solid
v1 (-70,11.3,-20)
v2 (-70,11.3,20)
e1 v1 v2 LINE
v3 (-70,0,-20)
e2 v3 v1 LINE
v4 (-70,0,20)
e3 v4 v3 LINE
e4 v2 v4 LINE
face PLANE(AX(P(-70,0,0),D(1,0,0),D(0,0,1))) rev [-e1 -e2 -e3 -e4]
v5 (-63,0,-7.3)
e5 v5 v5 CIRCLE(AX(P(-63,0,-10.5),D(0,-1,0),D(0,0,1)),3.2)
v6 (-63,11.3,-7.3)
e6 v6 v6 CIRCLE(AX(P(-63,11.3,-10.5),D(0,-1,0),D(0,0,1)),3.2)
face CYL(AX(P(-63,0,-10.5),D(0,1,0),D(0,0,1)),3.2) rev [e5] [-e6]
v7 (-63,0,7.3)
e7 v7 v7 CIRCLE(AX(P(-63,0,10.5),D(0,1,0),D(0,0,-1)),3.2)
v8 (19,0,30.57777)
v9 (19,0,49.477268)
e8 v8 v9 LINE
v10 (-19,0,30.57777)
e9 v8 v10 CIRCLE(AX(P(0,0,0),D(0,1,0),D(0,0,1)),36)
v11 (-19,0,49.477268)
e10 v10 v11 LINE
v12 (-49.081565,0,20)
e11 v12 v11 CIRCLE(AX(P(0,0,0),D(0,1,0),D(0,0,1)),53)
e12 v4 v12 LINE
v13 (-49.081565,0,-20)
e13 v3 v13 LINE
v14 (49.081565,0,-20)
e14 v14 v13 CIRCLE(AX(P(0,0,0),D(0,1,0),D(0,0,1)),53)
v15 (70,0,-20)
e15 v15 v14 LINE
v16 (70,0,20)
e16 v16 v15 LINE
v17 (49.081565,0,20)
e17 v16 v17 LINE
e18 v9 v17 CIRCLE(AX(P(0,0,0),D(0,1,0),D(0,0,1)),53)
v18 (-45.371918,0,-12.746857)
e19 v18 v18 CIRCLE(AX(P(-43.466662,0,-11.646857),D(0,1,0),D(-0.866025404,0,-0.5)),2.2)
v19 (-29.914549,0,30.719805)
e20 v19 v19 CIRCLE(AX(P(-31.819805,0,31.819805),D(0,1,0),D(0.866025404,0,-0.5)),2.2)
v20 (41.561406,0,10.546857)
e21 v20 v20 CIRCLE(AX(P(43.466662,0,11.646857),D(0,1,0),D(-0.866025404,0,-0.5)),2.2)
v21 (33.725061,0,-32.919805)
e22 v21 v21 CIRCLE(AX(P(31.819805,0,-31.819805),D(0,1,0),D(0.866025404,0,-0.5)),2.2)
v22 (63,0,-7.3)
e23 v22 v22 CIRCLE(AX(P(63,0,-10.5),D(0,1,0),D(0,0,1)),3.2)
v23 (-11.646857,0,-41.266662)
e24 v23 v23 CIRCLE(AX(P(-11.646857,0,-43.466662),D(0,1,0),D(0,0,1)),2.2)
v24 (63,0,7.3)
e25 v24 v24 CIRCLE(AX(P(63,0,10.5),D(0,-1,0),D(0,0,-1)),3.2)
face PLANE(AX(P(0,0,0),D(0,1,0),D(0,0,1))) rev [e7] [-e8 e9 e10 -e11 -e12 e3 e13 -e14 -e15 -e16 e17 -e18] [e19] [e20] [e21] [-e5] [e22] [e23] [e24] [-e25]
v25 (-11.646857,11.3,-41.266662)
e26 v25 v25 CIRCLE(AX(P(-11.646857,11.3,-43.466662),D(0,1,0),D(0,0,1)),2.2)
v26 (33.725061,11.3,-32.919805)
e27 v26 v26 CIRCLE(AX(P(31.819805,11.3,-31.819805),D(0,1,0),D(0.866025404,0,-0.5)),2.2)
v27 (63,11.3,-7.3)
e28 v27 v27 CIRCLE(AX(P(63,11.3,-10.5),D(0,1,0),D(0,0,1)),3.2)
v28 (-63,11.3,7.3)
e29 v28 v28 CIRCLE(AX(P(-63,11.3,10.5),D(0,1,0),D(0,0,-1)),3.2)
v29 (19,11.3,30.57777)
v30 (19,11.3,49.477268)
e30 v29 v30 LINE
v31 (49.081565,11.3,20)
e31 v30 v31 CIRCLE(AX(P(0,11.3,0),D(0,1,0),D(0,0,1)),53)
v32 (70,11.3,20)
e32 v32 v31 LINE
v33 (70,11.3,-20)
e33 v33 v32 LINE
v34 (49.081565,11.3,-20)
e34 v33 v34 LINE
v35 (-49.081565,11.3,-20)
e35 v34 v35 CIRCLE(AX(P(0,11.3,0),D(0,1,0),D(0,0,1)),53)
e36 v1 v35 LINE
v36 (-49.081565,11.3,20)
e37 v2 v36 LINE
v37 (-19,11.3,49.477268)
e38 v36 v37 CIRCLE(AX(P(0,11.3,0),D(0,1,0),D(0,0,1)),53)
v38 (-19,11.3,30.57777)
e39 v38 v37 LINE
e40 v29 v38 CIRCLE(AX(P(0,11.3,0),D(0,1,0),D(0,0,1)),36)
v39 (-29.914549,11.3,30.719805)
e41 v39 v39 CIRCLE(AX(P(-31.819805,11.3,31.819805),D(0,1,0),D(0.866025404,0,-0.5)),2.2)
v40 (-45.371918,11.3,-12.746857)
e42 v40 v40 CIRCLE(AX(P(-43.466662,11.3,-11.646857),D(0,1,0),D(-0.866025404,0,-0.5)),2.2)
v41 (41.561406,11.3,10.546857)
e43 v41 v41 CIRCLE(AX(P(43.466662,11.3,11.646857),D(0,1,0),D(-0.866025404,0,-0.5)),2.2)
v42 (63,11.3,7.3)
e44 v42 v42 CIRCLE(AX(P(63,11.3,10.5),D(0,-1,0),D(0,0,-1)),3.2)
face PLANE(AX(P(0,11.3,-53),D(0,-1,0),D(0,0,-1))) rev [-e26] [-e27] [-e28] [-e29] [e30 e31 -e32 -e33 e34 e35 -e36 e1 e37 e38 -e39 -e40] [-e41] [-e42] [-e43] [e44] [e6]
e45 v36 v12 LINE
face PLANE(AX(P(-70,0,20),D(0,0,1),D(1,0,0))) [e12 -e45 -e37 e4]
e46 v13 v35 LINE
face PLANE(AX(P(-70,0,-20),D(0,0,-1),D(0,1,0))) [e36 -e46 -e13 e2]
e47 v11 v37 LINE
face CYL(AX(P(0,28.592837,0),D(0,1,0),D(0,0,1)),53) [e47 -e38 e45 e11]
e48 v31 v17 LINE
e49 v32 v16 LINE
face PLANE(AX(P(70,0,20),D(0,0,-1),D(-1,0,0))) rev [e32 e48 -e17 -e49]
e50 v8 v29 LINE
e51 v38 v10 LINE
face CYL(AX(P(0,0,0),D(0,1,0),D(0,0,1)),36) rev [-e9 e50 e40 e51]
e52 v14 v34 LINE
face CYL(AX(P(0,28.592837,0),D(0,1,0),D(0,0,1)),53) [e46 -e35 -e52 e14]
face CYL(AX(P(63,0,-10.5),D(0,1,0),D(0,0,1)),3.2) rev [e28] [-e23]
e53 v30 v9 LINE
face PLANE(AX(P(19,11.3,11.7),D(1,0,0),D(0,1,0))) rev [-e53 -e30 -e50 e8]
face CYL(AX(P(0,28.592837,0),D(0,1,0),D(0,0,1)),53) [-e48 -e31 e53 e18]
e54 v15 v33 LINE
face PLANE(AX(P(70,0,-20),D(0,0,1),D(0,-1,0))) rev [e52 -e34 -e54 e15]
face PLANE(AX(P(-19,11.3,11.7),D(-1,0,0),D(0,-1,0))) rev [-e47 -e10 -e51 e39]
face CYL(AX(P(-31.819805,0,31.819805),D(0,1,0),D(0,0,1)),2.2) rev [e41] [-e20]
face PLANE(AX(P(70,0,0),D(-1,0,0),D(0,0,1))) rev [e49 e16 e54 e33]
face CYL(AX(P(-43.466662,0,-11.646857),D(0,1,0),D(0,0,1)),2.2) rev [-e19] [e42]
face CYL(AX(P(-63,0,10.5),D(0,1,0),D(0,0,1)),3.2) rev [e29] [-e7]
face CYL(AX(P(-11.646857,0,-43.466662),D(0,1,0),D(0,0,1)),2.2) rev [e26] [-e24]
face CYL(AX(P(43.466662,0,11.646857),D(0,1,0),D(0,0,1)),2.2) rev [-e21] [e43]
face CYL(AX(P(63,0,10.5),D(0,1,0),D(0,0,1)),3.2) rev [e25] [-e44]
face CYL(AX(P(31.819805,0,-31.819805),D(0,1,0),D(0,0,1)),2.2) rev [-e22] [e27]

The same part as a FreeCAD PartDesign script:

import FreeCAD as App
import Part
import Sketcher

V = App.Vector


def add_polygon(sketch, points):
    """Adds a closed chain of lines whose ends are joined by coincident constraints."""
    first, n = sketch.GeometryCount, len(points)
    for a, b in zip(points, points[1:] + points[:1]):
        sketch.addGeometry(Part.LineSegment(App.Vector(*a, 0), App.Vector(*b, 0)), False)
    for i in range(n):
        sketch.addConstraint(Sketcher.Constraint("Coincident", first + i, 2, first + (i + 1) % n, 1))

doc = App.newDocument("Part")
body = doc.addObject("PartDesign::Body", "Body")

# Sketch on YZ plane
sketch1 = body.newObject("Sketcher::SketchObject", "Sketch")
sketch1.AttachmentSupport = (doc.getObject("YZ_Plane"), [""])
sketch1.MapMode = "FlatFace"
add_polygon(sketch1, [(11.3, 0), (0, 0), (0, -53), (11.3, -53)])  # lines 0-3
sketch1.addConstraint(Sketcher.Constraint("Horizontal", 0))
sketch1.addConstraint(Sketcher.Constraint("Vertical", 1))
sketch1.addConstraint(Sketcher.Constraint("Horizontal", 2))
sketch1.addConstraint(Sketcher.Constraint("Vertical", 3))
sketch1.addConstraint(Sketcher.Constraint("Coincident", 0, 2, -1, 1))
sketch1.addConstraint(Sketcher.Constraint("DistanceY", 1, 2, 1, 1, 53.0))
sketch1.addConstraint(Sketcher.Constraint("DistanceX", 0, 2, 0, 1, 11.3))
revolution = body.newObject("PartDesign::Revolution", "Revolution")
revolution.Profile = sketch1
revolution.ReferenceAxis = (sketch1, ["H_Axis"])
revolution.Angle = 360

# Sketch on XZ plane
sketch2 = body.newObject("Sketcher::SketchObject", "Sketch001")
sketch2.AttachmentSupport = (doc.getObject("XZ_Plane"), [""])
sketch2.MapMode = "FlatFace"
sketch2.AttachmentOffset = App.Placement(V(0, 0, -11.3), App.Rotation())
sketch2.addGeometry(Part.Circle(V(0, 0, 0), V(0, 0, 1), 36), False)
sketch2.addConstraint(Sketcher.Constraint("Coincident", 0, 3, -1, 1))
sketch2.addConstraint(Sketcher.Constraint("Diameter", 0, 72.0))
pocket1 = body.newObject("PartDesign::Pocket", "Pocket")
pocket1.Profile = sketch2
pocket1.Length = 11.3
pocket1.Reversed = True

# Sketch on XY plane
sketch3 = body.newObject("Sketcher::SketchObject", "Sketch002")
sketch3.AttachmentSupport = (doc.getObject("XY_Plane"), [""])
sketch3.MapMode = "FlatFace"
sketch3.AttachmentOffset = App.Placement(V(0, 0, 53), App.Rotation())
add_polygon(sketch3, [(-19, 11.3), (-19, 0), (19, 0), (19, 11.3)])  # lines 0-3
sketch3.addConstraint(Sketcher.Constraint("Vertical", 0))
sketch3.addConstraint(Sketcher.Constraint("Horizontal", 1))
sketch3.addConstraint(Sketcher.Constraint("Vertical", 2))
sketch3.addConstraint(Sketcher.Constraint("Horizontal", 3))
sketch3.addConstraint(Sketcher.Constraint("Symmetric", 0, 2, 1, 2, -1, 1))
sketch3.addConstraint(Sketcher.Constraint("DistanceX", 1, 1, 1, 2, 38.0))
sketch3.addConstraint(Sketcher.Constraint("DistanceY", 0, 2, 0, 1, 11.3))
pocket2 = body.newObject("PartDesign::Pocket", "Pocket001")
pocket2.Profile = sketch3
pocket2.Length = 41.3

# Sketch on XZ plane
sketch4 = body.newObject("Sketcher::SketchObject", "Sketch003")
sketch4.AttachmentSupport = (doc.getObject("XZ_Plane"), [""])
sketch4.MapMode = "FlatFace"
sketch4.AttachmentOffset = App.Placement(V(0, 0, -11.3), App.Rotation())
sketch4.addGeometry(Part.Circle(V(11.646857, 43.466662, 0), V(0, 0, 1), 2.2), False)
sketch4.addGeometry(Part.Circle(V(-11.646857, -43.466662, 0), V(0, 0, 1), 2.2), False)
sketch4.addConstraint(Sketcher.Constraint("Equal", 0, 1))
sketch4.addConstraint(Sketcher.Constraint("Symmetric", 0, 3, 1, 3, -1, 1))
sketch4.addConstraint(Sketcher.Constraint("Diameter", 0, 4.4))
sketch4.addConstraint(Sketcher.Constraint("DistanceX", -1, 1, 0, 3, 11.646857))
sketch4.addConstraint(Sketcher.Constraint("DistanceY", -1, 1, 0, 3, 43.466662))
pocket3 = body.newObject("PartDesign::Pocket", "Pocket002")
pocket3.Profile = sketch4
pocket3.Type = "ThroughAll"
pocket3.Reversed = True
doc.recompute()

polarpattern = body.newObject("PartDesign::PolarPattern", "PolarPattern")
polarpattern.Originals = [pocket3]
polarpattern.Axis = (doc.getObject("Y_Axis"), [""])
polarpattern.Angle = 360
polarpattern.Occurrences = 3
body.Tip = polarpattern

# Sketch on YZ plane
sketch5 = body.newObject("Sketcher::SketchObject", "Sketch004")
sketch5.AttachmentSupport = (doc.getObject("YZ_Plane"), [""])
sketch5.MapMode = "FlatFace"
sketch5.AttachmentOffset = App.Placement(V(0, 0, 48), App.Rotation())
add_polygon(sketch5, [(11.3, 20), (0, 20), (0, -20), (11.3, -20)])  # lines 0-3
sketch5.addConstraint(Sketcher.Constraint("Horizontal", 0))
sketch5.addConstraint(Sketcher.Constraint("Vertical", 1))
sketch5.addConstraint(Sketcher.Constraint("Horizontal", 2))
sketch5.addConstraint(Sketcher.Constraint("Vertical", 3))
sketch5.addConstraint(Sketcher.Constraint("Symmetric", 0, 2, 1, 2, -1, 1))
sketch5.addConstraint(Sketcher.Constraint("DistanceY", 1, 2, 1, 1, 40.0))
sketch5.addConstraint(Sketcher.Constraint("DistanceX", 0, 2, 0, 1, 11.3))
pad1 = body.newObject("PartDesign::Pad", "Pad")
pad1.Profile = sketch5
pad1.Length = 22
doc.recompute()

mirrored = body.newObject("PartDesign::Mirrored", "Mirrored")
mirrored.Originals = [pad1]
mirrored.MirrorPlane = (doc.getObject("YZ_Plane"), [""])
body.Tip = mirrored

# Sketch on XZ plane
sketch6 = body.newObject("Sketcher::SketchObject", "Sketch005")
sketch6.AttachmentSupport = (doc.getObject("XZ_Plane"), [""])
sketch6.MapMode = "FlatFace"
sketch6.AttachmentOffset = App.Placement(V(0, 0, -11.3), App.Rotation())
sketch6.addGeometry(Part.Circle(V(63, -10.5, 0), V(0, 0, 1), 3.2), False)
sketch6.addConstraint(Sketcher.Constraint("Diameter", 0, 6.4))
sketch6.addConstraint(Sketcher.Constraint("DistanceX", -1, 1, 0, 3, 63.0))
sketch6.addConstraint(Sketcher.Constraint("DistanceY", 0, 3, -1, 1, 10.5))
pocket4 = body.newObject("PartDesign::Pocket", "Pocket003")
pocket4.Profile = sketch6
pocket4.Type = "ThroughAll"
pocket4.Reversed = True
doc.recompute()

mirrored2 = body.newObject("PartDesign::Mirrored", "Mirrored001")
mirrored2.Originals = [pocket4]
mirrored2.MirrorPlane = (doc.getObject("YZ_Plane"), [""])
body.Tip = mirrored2
doc.recompute()

mirrored3 = body.newObject("PartDesign::Mirrored", "Mirrored002")
mirrored3.Originals = [pocket4]
mirrored3.MirrorPlane = (doc.getObject("XY_Plane"), [""])
body.Tip = mirrored3

# Sketch on XZ plane
sketch7 = body.newObject("Sketcher::SketchObject", "Sketch006")
sketch7.AttachmentSupport = (doc.getObject("XZ_Plane"), [""])
sketch7.MapMode = "FlatFace"
sketch7.AttachmentOffset = App.Placement(V(0, 0, -11.3), App.Rotation())
sketch7.addGeometry(Part.Circle(V(-63, 10.5, 0), V(0, 0, 1), 3.2), False)
sketch7.addConstraint(Sketcher.Constraint("Diameter", 0, 6.4))
sketch7.addConstraint(Sketcher.Constraint("DistanceX", 0, 3, -1, 1, 63.0))
sketch7.addConstraint(Sketcher.Constraint("DistanceY", -1, 1, 0, 3, 10.5))
pocket5 = body.newObject("PartDesign::Pocket", "Pocket004")
pocket5.Profile = sketch7
pocket5.Type = "ThroughAll"
pocket5.Reversed = True

doc.recompute()
